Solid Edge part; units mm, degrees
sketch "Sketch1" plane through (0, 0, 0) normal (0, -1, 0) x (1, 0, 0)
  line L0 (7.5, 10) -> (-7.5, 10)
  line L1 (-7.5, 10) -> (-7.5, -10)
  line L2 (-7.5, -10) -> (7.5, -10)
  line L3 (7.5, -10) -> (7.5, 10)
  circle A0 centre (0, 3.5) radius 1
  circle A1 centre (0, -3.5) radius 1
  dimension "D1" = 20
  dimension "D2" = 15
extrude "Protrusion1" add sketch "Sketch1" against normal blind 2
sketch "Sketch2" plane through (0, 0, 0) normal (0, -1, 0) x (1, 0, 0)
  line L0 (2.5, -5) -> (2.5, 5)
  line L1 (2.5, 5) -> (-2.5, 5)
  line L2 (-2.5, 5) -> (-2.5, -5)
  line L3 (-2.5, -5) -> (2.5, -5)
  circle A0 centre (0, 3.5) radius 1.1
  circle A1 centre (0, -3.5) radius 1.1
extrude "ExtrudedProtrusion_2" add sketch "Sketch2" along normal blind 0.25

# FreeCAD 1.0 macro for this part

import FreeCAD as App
import Part
import Sketcher

V = App.Vector

doc = App.newDocument("Part")
body = doc.addObject("PartDesign::Body", "Body")

# Sketch on XZ plane
sketch1 = body.newObject("Sketcher::SketchObject", "Sketch")
sketch1.AttachmentSupport = (doc.getObject("XZ_Plane"), [""])
sketch1.MapMode = "FlatFace"
sketch1.addGeometry(Part.LineSegment(V(7.5, -10, 0), V(7.5, 10, 0)), False)
sketch1.addGeometry(Part.LineSegment(V(7.5, 10, 0), V(-7.5, 10, 0)), False)
sketch1.addGeometry(Part.LineSegment(V(-7.5, 10, 0), V(-7.5, -10, 0)), False)
sketch1.addGeometry(Part.LineSegment(V(-7.5, -10, 0), V(7.5, -10, 0)), False)
sketch1.addGeometry(Part.Circle(V(0, -3.5, 0), V(0, 0, 1), 1), False)
sketch1.addGeometry(Part.Circle(V(0, 3.5, 0), V(0, 0, 1), 1), False)
sketch1.addConstraint(Sketcher.Constraint("Coincident", 0, 2, 1, 1))
sketch1.addConstraint(Sketcher.Constraint("Coincident", 1, 2, 2, 1))
sketch1.addConstraint(Sketcher.Constraint("Coincident", 2, 2, 3, 1))
sketch1.addConstraint(Sketcher.Constraint("Coincident", 3, 2, 0, 1))
sketch1.addConstraint(Sketcher.Constraint("Vertical", 0))
sketch1.addConstraint(Sketcher.Constraint("Horizontal", 1))
sketch1.addConstraint(Sketcher.Constraint("Vertical", 2))
sketch1.addConstraint(Sketcher.Constraint("Horizontal", 3))
sketch1.addConstraint(Sketcher.Constraint("Equal", 4, 5))
sketch1.addConstraint(Sketcher.Constraint("Symmetric", 4, 3, 5, 3, -1, 1))
sketch1.addConstraint(Sketcher.Constraint("Symmetric", 0, 2, 2, 2, -1, 1))
sketch1.addConstraint(Sketcher.Constraint("PointOnObject", 4, 3, -2))
sketch1.addConstraint(Sketcher.Constraint("Diameter", 4, 2.0))
sketch1.addConstraint(Sketcher.Constraint("DistanceX", 1, 2, 1, 1, 15.0))
sketch1.addConstraint(Sketcher.Constraint("DistanceY", 0, 1, 0, 2, 20.0))
sketch1.addConstraint(Sketcher.Constraint("DistanceY", 4, 3, 5, 3, 7.0))
pad1 = body.newObject("PartDesign::Pad", "Pad")
pad1.Profile = sketch1
pad1.Length = 2
pad1.Reversed = True

# Sketch on XZ plane
sketch2 = body.newObject("Sketcher::SketchObject", "Sketch001")
sketch2.AttachmentSupport = (doc.getObject("XZ_Plane"), [""])
sketch2.MapMode = "FlatFace"
sketch2.addGeometry(Part.LineSegment(V(-2.5, -5, 0), V(2.5, -5, 0)), False)
sketch2.addGeometry(Part.LineSegment(V(2.5, -5, 0), V(2.5, 5, 0)), False)
sketch2.addGeometry(Part.LineSegment(V(2.5, 5, 0), V(-2.5, 5, 0)), False)
sketch2.addGeometry(Part.LineSegment(V(-2.5, 5, 0), V(-2.5, -5, 0)), False)
sketch2.addGeometry(Part.Circle(V(0, -3.5, 0), V(0, 0, 1), 1.1), False)
sketch2.addGeometry(Part.Circle(V(0, 3.5, 0), V(0, 0, 1), 1.1), False)
sketch2.addConstraint(Sketcher.Constraint("Coincident", 0, 2, 1, 1))
sketch2.addConstraint(Sketcher.Constraint("Coincident", 1, 2, 2, 1))
sketch2.addConstraint(Sketcher.Constraint("Coincident", 2, 2, 3, 1))
sketch2.addConstraint(Sketcher.Constraint("Coincident", 3, 2, 0, 1))
sketch2.addConstraint(Sketcher.Constraint("Horizontal", 0))
sketch2.addConstraint(Sketcher.Constraint("Vertical", 1))
sketch2.addConstraint(Sketcher.Constraint("Horizontal", 2))
sketch2.addConstraint(Sketcher.Constraint("Vertical", 3))
sketch2.addConstraint(Sketcher.Constraint("Equal", 4, 5))
sketch2.addConstraint(Sketcher.Constraint("Symmetric", 4, 3, 5, 3, -1, 1))
sketch2.addConstraint(Sketcher.Constraint("Symmetric", 0, 2, 2, 2, -1, 1))
sketch2.addConstraint(Sketcher.Constraint("PointOnObject", 4, 3, -2))
sketch2.addConstraint(Sketcher.Constraint("Diameter", 4, 2.2))
sketch2.addConstraint(Sketcher.Constraint("DistanceX", 0, 1, 0, 2, 5.0))
sketch2.addConstraint(Sketcher.Constraint("DistanceY", 1, 1, 1, 2, 10.0))
sketch2.addConstraint(Sketcher.Constraint("DistanceY", 4, 3, 5, 3, 7.0))
pad2 = body.newObject("PartDesign::Pad", "Pad001")
pad2.Profile = sketch2
pad2.Length = 0.25

doc.recompute()
